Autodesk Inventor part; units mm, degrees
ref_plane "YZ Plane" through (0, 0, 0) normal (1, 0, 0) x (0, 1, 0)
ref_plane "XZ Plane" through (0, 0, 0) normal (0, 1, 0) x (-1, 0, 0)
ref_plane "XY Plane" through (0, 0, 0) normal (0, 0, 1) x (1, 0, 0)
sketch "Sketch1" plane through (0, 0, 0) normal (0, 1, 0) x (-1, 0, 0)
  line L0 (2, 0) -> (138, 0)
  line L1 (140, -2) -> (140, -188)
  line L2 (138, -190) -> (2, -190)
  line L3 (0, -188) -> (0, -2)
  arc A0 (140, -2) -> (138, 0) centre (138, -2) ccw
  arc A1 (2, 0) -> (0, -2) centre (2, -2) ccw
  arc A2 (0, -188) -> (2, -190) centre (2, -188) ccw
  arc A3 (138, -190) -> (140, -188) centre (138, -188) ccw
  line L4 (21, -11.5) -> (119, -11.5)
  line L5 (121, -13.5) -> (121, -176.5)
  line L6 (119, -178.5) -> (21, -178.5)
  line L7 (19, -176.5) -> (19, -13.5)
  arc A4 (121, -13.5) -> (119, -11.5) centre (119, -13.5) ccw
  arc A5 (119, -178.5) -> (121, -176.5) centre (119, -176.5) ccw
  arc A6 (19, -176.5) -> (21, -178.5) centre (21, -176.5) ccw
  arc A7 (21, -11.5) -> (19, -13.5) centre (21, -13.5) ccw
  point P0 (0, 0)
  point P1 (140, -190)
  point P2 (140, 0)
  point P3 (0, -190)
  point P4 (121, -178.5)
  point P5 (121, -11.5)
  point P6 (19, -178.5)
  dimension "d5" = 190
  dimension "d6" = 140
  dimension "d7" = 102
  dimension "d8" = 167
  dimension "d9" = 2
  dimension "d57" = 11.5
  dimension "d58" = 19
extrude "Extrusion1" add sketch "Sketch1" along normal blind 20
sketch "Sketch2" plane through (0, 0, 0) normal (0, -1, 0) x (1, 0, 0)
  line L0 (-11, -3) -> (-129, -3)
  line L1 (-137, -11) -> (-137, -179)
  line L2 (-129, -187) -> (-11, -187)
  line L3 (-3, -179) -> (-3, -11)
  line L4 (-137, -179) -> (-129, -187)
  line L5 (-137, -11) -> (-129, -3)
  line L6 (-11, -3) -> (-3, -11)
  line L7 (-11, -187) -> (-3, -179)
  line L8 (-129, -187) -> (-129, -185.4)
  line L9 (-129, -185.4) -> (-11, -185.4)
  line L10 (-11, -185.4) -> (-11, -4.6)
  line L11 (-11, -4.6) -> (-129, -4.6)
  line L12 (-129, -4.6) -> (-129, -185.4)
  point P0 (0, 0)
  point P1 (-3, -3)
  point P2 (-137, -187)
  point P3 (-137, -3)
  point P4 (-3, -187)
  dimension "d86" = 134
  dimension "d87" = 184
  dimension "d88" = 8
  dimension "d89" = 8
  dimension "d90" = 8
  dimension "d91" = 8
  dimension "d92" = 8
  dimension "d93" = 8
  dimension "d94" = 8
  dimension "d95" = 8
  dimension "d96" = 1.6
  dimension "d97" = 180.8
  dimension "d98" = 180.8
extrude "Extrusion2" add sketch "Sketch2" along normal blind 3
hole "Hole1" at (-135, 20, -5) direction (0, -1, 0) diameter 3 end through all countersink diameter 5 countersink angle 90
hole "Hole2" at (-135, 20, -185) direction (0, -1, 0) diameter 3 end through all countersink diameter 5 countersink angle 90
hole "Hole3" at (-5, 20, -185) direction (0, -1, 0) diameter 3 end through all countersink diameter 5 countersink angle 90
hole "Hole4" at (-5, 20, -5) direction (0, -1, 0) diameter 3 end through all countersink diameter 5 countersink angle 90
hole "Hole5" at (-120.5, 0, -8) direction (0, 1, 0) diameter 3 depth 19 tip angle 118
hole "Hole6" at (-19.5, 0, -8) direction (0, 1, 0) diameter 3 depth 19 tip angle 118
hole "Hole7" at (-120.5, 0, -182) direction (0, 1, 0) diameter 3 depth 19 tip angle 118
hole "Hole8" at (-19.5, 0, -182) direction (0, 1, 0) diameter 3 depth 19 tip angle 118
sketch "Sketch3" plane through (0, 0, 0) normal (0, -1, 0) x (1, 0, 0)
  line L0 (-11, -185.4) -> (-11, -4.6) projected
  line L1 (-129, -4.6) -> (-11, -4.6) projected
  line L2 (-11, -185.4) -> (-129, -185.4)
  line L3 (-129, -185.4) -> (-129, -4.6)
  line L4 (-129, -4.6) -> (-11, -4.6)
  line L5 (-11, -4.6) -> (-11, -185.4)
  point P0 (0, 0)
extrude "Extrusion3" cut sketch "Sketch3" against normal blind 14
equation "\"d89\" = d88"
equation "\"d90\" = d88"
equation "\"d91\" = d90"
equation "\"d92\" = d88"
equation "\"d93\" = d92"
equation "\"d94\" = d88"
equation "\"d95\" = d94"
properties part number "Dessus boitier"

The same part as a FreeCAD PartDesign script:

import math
import FreeCAD as App
import Part
import Sketcher
from FreeCAD import Vector
Q = App.Units.Quantity


def add_polygon(sketch, points):
    """Adds a closed chain of lines whose ends are joined by coincident constraints."""
    first, n = sketch.GeometryCount, len(points)
    for a, b in zip(points, points[1:] + points[:1]):
        sketch.addGeometry(Part.LineSegment(App.Vector(*a, 0), App.Vector(*b, 0)), False)
    for i in range(n):
        sketch.addConstraint(Sketcher.Constraint("Coincident", first + i, 2, first + (i + 1) % n, 1))

doc = App.newDocument("Part")
body = doc.addObject("PartDesign::Body", "Body")

# Sketch on XZ plane
sketch1 = body.newObject("Sketcher::SketchObject", "Sketch")
sketch1.AttachmentSupport = (doc.getObject("XZ_Plane"), [""])
sketch1.MapMode = "FlatFace"
sketch1.addGeometry(Part.LineSegment(Vector(-138, 0, 0), Vector(-2, 0, 0)), False)
sketch1.addGeometry(Part.ArcOfCircle(Part.Circle(Vector(-2, -2, 0), Vector(0, 0, 1), 2), math.radians(0), math.radians(90)), False)
sketch1.addGeometry(Part.LineSegment(Vector(0, -2, 0), Vector(0, -188, 0)), False)
sketch1.addGeometry(Part.ArcOfCircle(Part.Circle(Vector(-2, -188, 0), Vector(0, 0, 1), 2), math.radians(-90), math.radians(0)), False)
sketch1.addGeometry(Part.LineSegment(Vector(-2, -190, 0), Vector(-138, -190, 0)), False)
sketch1.addGeometry(Part.ArcOfCircle(Part.Circle(Vector(-138, -188, 0), Vector(0, 0, 1), 2), math.radians(180), math.radians(270)), False)
sketch1.addGeometry(Part.LineSegment(Vector(-140, -188, 0), Vector(-140, -2, 0)), False)
sketch1.addGeometry(Part.ArcOfCircle(Part.Circle(Vector(-138, -2, 0), Vector(0, 0, 1), 2), math.radians(90), math.radians(180)), False)
sketch1.addGeometry(Part.ArcOfCircle(Part.Circle(Vector(-21, -13.5, 0), Vector(0, 0, 1), 2), math.radians(0), math.radians(90)), False)
sketch1.addGeometry(Part.LineSegment(Vector(-21, -11.5, 0), Vector(-119, -11.5, 0)), False)
sketch1.addGeometry(Part.ArcOfCircle(Part.Circle(Vector(-119, -13.5, 0), Vector(0, 0, 1), 2), math.radians(90), math.radians(180)), False)
sketch1.addGeometry(Part.LineSegment(Vector(-121, -13.5, 0), Vector(-121, -176.5, 0)), False)
sketch1.addGeometry(Part.ArcOfCircle(Part.Circle(Vector(-119, -176.5, 0), Vector(0, 0, 1), 2), math.radians(180), math.radians(270)), False)
sketch1.addGeometry(Part.LineSegment(Vector(-119, -178.5, 0), Vector(-21, -178.5, 0)), False)
sketch1.addGeometry(Part.ArcOfCircle(Part.Circle(Vector(-21, -176.5, 0), Vector(0, 0, 1), 2), math.radians(-90), math.radians(0)), False)
sketch1.addGeometry(Part.LineSegment(Vector(-19, -176.5, 0), Vector(-19, -13.5, 0)), False)
sketch1.addConstraint(Sketcher.Constraint("Tangent", 0, 2, 1, 2))
sketch1.addConstraint(Sketcher.Constraint("Tangent", 1, 1, 2, 1))
sketch1.addConstraint(Sketcher.Constraint("Tangent", 2, 2, 3, 2))
sketch1.addConstraint(Sketcher.Constraint("Tangent", 3, 1, 4, 1))
sketch1.addConstraint(Sketcher.Constraint("Tangent", 4, 2, 5, 2))
sketch1.addConstraint(Sketcher.Constraint("Tangent", 5, 1, 6, 1))
sketch1.addConstraint(Sketcher.Constraint("Tangent", 6, 2, 7, 2))
sketch1.addConstraint(Sketcher.Constraint("Tangent", 7, 1, 0, 1))
sketch1.addConstraint(Sketcher.Constraint("Tangent", 8, 2, 9, 1))
sketch1.addConstraint(Sketcher.Constraint("Tangent", 9, 2, 10, 1))
sketch1.addConstraint(Sketcher.Constraint("Tangent", 10, 2, 11, 1))
sketch1.addConstraint(Sketcher.Constraint("Tangent", 11, 2, 12, 1))
sketch1.addConstraint(Sketcher.Constraint("Tangent", 12, 2, 13, 1))
sketch1.addConstraint(Sketcher.Constraint("Tangent", 13, 2, 14, 1))
sketch1.addConstraint(Sketcher.Constraint("Tangent", 14, 2, 15, 1))
sketch1.addConstraint(Sketcher.Constraint("Tangent", 15, 2, 8, 1))
sketch1.addConstraint(Sketcher.Constraint("Horizontal", 0))
sketch1.addConstraint(Sketcher.Constraint("Vertical", 2))
sketch1.addConstraint(Sketcher.Constraint("Horizontal", 4))
sketch1.addConstraint(Sketcher.Constraint("Vertical", 6))
sketch1.addConstraint(Sketcher.Constraint("Horizontal", 9))
sketch1.addConstraint(Sketcher.Constraint("Vertical", 11))
sketch1.addConstraint(Sketcher.Constraint("Horizontal", 13))
sketch1.addConstraint(Sketcher.Constraint("Vertical", 15))
sketch1.addConstraint(Sketcher.Constraint("Equal", 1, 3))
sketch1.addConstraint(Sketcher.Constraint("Equal", 3, 5))
sketch1.addConstraint(Sketcher.Constraint("Equal", 5, 7))
sketch1.addConstraint(Sketcher.Constraint("Equal", 7, 8))
sketch1.addConstraint(Sketcher.Constraint("Equal", 8, 10))
sketch1.addConstraint(Sketcher.Constraint("Equal", 10, 12))
sketch1.addConstraint(Sketcher.Constraint("Equal", 12, 14))
sketch1.addConstraint(Sketcher.Constraint("PointOnObject", 0, 2, -1))
sketch1.addConstraint(Sketcher.Constraint("PointOnObject", 1, 1, -2))
sketch1.addConstraint(Sketcher.Constraint("Radius", 1, Q("2 mm")))
sketch1.addConstraint(Sketcher.Constraint("DistanceY", 3, 1, -1, 1, Q("190 mm")))
sketch1.addConstraint(Sketcher.Constraint("DistanceX", 5, 1, -1, 1, Q("140 mm")))
sketch1.addConstraint(Sketcher.Constraint("DistanceX", 14, 2, -1, 1, Q("19 mm")))
sketch1.addConstraint(Sketcher.Constraint("DistanceX", 7, 3, 10, 3, Q("19 mm")))
sketch1.addConstraint(Sketcher.Constraint("DistanceY", 8, 2, -1, 1, Q("11.5 mm")))
sketch1.addConstraint(Sketcher.Constraint("DistanceY", 5, 3, 12, 3, Q("11.5 mm")))
pad1 = body.newObject("PartDesign::Pad", "Pad")
pad1.Profile = sketch1
pad1.Length = 20
pad1.Reversed = True

# Sketch on XZ plane
sketch2 = body.newObject("Sketcher::SketchObject", "Sketch001")
sketch2.AttachmentSupport = (doc.getObject("XZ_Plane"), [""])
sketch2.MapMode = "FlatFace"
add_polygon(sketch2, [(-3, -11), (-11, -3), (-129, -3), (-137, -11), (-137, -179), (-129, -187), (-11, -187), (-3, -179)])  # lines 0-7
add_polygon(sketch2, [(-11, -185), (-129, -185), (-129, -5), (-11, -5)])  # lines 8-11
sketch2.addConstraint(Sketcher.Constraint("Horizontal", 1))
sketch2.addConstraint(Sketcher.Constraint("Vertical", 3))
sketch2.addConstraint(Sketcher.Constraint("Horizontal", 5))
sketch2.addConstraint(Sketcher.Constraint("Vertical", 7))
sketch2.addConstraint(Sketcher.Constraint("Horizontal", 8))
sketch2.addConstraint(Sketcher.Constraint("Vertical", 9))
sketch2.addConstraint(Sketcher.Constraint("Horizontal", 10))
sketch2.addConstraint(Sketcher.Constraint("Vertical", 11))
sketch2.addConstraint(Sketcher.Constraint("Perpendicular", 0, 2))
sketch2.addConstraint(Sketcher.Constraint("Perpendicular", 2, 4))
sketch2.addConstraint(Sketcher.Constraint("Perpendicular", 4, 6))
sketch2.addConstraint(Sketcher.Constraint("Horizontal", 3, 2, 6, 2))
sketch2.addConstraint(Sketcher.Constraint("Horizontal", 2, 2, 7, 2))
sketch2.addConstraint(Sketcher.Constraint("Vertical", 1, 2, 4, 2))
sketch2.addConstraint(Sketcher.Constraint("Vertical", 0, 2, 5, 2))
sketch2.addConstraint(Sketcher.Constraint("Vertical", 4, 2, 8, 2))
sketch2.addConstraint(Sketcher.Constraint("Vertical", 5, 2, 10, 2))
sketch2.addConstraint(Sketcher.Constraint("DistanceY", 9, 1, 9, 2, Q("180.8 mm")))
sketch2.addConstraint(Sketcher.Constraint("DistanceX", 2, 2, 1, 2, Q("8 mm")))
sketch2.addConstraint(Sketcher.Constraint("DistanceY", 4, 2, 1, 2, Q("184 mm")))
sketch2.addConstraint(Sketcher.Constraint("DistanceX", 3, 2, 6, 2, Q("134 mm")))
sketch2.addConstraint(Sketcher.Constraint("DistanceY", 4, 2, 8, 2, Q("1.6 mm")))
sketch2.addConstraint(Sketcher.Constraint("DistanceX", 0, 2, -1, 1, Q("11 mm")))
sketch2.addConstraint(Sketcher.Constraint("DistanceY", 0, 2, -1, 1, Q("3 mm")))
pad2 = body.newObject("PartDesign::Pad", "Pad001")
pad2.Profile = sketch2
pad2.Length = 3

# Sketch on XZ plane
sketch3 = body.newObject("Sketcher::SketchObject", "Sketch002")
sketch3.AttachmentSupport = (doc.getObject("XZ_Plane"), [""])
sketch3.MapMode = "FlatFace"
sketch3.AttachmentOffset = App.Placement(Vector(0, 0, -20), App.Rotation())
sketch3.addGeometry(Part.Circle(Vector(-135, -5, 0), Vector(0, 0, 1), 1.5), False)
sketch3.addConstraint(Sketcher.Constraint("Diameter", 0, Q("3 mm")))
sketch3.addConstraint(Sketcher.Constraint("DistanceX", 0, 3, -1, 1, Q("135 mm")))
sketch3.addConstraint(Sketcher.Constraint("DistanceY", 0, 3, -1, 1, Q("5 mm")))
doc.recompute()
hole = body.newObject("PartDesign::Hole", "Hole")
hole.Profile = sketch3
hole.ThreadType = "None"
hole.Diameter = 3
hole.DepthType = "ThroughAll"
hole.HoleCutType = "Countersink"
hole.HoleCutDiameter = 5
hole.HoleCutCountersinkAngle = 90
hole.Reversed = True

# Sketch on XZ plane
sketch4 = body.newObject("Sketcher::SketchObject", "Sketch003")
sketch4.AttachmentSupport = (doc.getObject("XZ_Plane"), [""])
sketch4.MapMode = "FlatFace"
sketch4.AttachmentOffset = App.Placement(Vector(0, 0, -20), App.Rotation())
sketch4.addGeometry(Part.Circle(Vector(-135, -185, 0), Vector(0, 0, 1), 1.5), False)
sketch4.addConstraint(Sketcher.Constraint("Diameter", 0, Q("3 mm")))
sketch4.addConstraint(Sketcher.Constraint("DistanceX", 0, 3, -1, 1, Q("135 mm")))
sketch4.addConstraint(Sketcher.Constraint("DistanceY", 0, 3, -1, 1, Q("185 mm")))
doc.recompute()
hole2 = body.newObject("PartDesign::Hole", "Hole001")
hole2.Profile = sketch4
hole2.ThreadType = "None"
hole2.Diameter = 3
hole2.DepthType = "ThroughAll"
hole2.HoleCutType = "Countersink"
hole2.HoleCutDiameter = 5
hole2.HoleCutCountersinkAngle = 90
hole2.Reversed = True

# Sketch on XZ plane
sketch5 = body.newObject("Sketcher::SketchObject", "Sketch004")
sketch5.AttachmentSupport = (doc.getObject("XZ_Plane"), [""])
sketch5.MapMode = "FlatFace"
sketch5.AttachmentOffset = App.Placement(Vector(0, 0, -20), App.Rotation())
sketch5.addGeometry(Part.Circle(Vector(-5, -185, 0), Vector(0, 0, 1), 1.5), False)
sketch5.addConstraint(Sketcher.Constraint("Diameter", 0, Q("3 mm")))
sketch5.addConstraint(Sketcher.Constraint("DistanceX", 0, 3, -1, 1, Q("5 mm")))
sketch5.addConstraint(Sketcher.Constraint("DistanceY", 0, 3, -1, 1, Q("185 mm")))
doc.recompute()
hole3 = body.newObject("PartDesign::Hole", "Hole002")
hole3.Profile = sketch5
hole3.ThreadType = "None"
hole3.Diameter = 3
hole3.DepthType = "ThroughAll"
hole3.HoleCutType = "Countersink"
hole3.HoleCutDiameter = 5
hole3.HoleCutCountersinkAngle = 90
hole3.Reversed = True

# Sketch on XZ plane
sketch6 = body.newObject("Sketcher::SketchObject", "Sketch005")
sketch6.AttachmentSupport = (doc.getObject("XZ_Plane"), [""])
sketch6.MapMode = "FlatFace"
sketch6.AttachmentOffset = App.Placement(Vector(0, 0, -20), App.Rotation())
sketch6.addGeometry(Part.Circle(Vector(-5, -5, 0), Vector(0, 0, 1), 1.5), False)
sketch6.addConstraint(Sketcher.Constraint("Diameter", 0, Q("3 mm")))
sketch6.addConstraint(Sketcher.Constraint("DistanceX", 0, 3, -1, 1, Q("5 mm")))
sketch6.addConstraint(Sketcher.Constraint("DistanceY", 0, 3, -1, 1, Q("5 mm")))
doc.recompute()
hole4 = body.newObject("PartDesign::Hole", "Hole003")
hole4.Profile = sketch6
hole4.ThreadType = "None"
hole4.Diameter = 3
hole4.DepthType = "ThroughAll"
hole4.HoleCutType = "Countersink"
hole4.HoleCutDiameter = 5
hole4.HoleCutCountersinkAngle = 90
hole4.Reversed = True

# Sketch on XZ plane
sketch7 = body.newObject("Sketcher::SketchObject", "Sketch006")
sketch7.AttachmentSupport = (doc.getObject("XZ_Plane"), [""])
sketch7.MapMode = "FlatFace"
sketch7.addGeometry(Part.Circle(Vector(-120.5, -8, 0), Vector(0, 0, 1), 1.5), False)
sketch7.addConstraint(Sketcher.Constraint("Diameter", 0, Q("3 mm")))
sketch7.addConstraint(Sketcher.Constraint("DistanceY", 0, 3, -1, 1, Q("8 mm")))
sketch7.addConstraint(Sketcher.Constraint("DistanceX", 0, 3, -1, 1, Q("120.5 mm")))
doc.recompute()
hole5 = body.newObject("PartDesign::Hole", "Hole004")
hole5.Profile = sketch7
hole5.ThreadType = "None"
hole5.Diameter = 3
hole5.DepthType = "Dimension"
hole5.Depth = 19
hole5.DrillPoint = "Angled"
hole5.DrillPointAngle = 118

# Sketch on XZ plane
sketch8 = body.newObject("Sketcher::SketchObject", "Sketch007")
sketch8.AttachmentSupport = (doc.getObject("XZ_Plane"), [""])
sketch8.MapMode = "FlatFace"
sketch8.addGeometry(Part.Circle(Vector(-19.5, -8, 0), Vector(0, 0, 1), 1.5), False)
sketch8.addConstraint(Sketcher.Constraint("Diameter", 0, Q("3 mm")))
sketch8.addConstraint(Sketcher.Constraint("DistanceY", 0, 3, -1, 1, Q("8 mm")))
sketch8.addConstraint(Sketcher.Constraint("DistanceX", 0, 3, -1, 1, Q("19.5 mm")))
doc.recompute()
hole6 = body.newObject("PartDesign::Hole", "Hole005")
hole6.Profile = sketch8
hole6.ThreadType = "None"
hole6.Diameter = 3
hole6.DepthType = "Dimension"
hole6.Depth = 19
hole6.DrillPoint = "Angled"
hole6.DrillPointAngle = 118

# Sketch on XZ plane
sketch9 = body.newObject("Sketcher::SketchObject", "Sketch008")
sketch9.AttachmentSupport = (doc.getObject("XZ_Plane"), [""])
sketch9.MapMode = "FlatFace"
sketch9.addGeometry(Part.Circle(Vector(-120.5, -182, 0), Vector(0, 0, 1), 1.5), False)
sketch9.addConstraint(Sketcher.Constraint("Diameter", 0, Q("3 mm")))
sketch9.addConstraint(Sketcher.Constraint("DistanceY", 0, 3, -1, 1, Q("182 mm")))
sketch9.addConstraint(Sketcher.Constraint("DistanceX", 0, 3, -1, 1, Q("120.5 mm")))
doc.recompute()
hole7 = body.newObject("PartDesign::Hole", "Hole006")
hole7.Profile = sketch9
hole7.ThreadType = "None"
hole7.Diameter = 3
hole7.DepthType = "Dimension"
hole7.Depth = 19
hole7.DrillPoint = "Angled"
hole7.DrillPointAngle = 118

# Sketch on XZ plane
sketch10 = body.newObject("Sketcher::SketchObject", "Sketch009")
sketch10.AttachmentSupport = (doc.getObject("XZ_Plane"), [""])
sketch10.MapMode = "FlatFace"
sketch10.addGeometry(Part.Circle(Vector(-19.5, -182, 0), Vector(0, 0, 1), 1.5), False)
sketch10.addConstraint(Sketcher.Constraint("Diameter", 0, Q("3 mm")))
sketch10.addConstraint(Sketcher.Constraint("DistanceY", 0, 3, -1, 1, Q("182 mm")))
sketch10.addConstraint(Sketcher.Constraint("DistanceX", 0, 3, -1, 1, Q("19.5 mm")))
doc.recompute()
hole8 = body.newObject("PartDesign::Hole", "Hole007")
hole8.Profile = sketch10
hole8.ThreadType = "None"
hole8.Diameter = 3
hole8.DepthType = "Dimension"
hole8.Depth = 19
hole8.DrillPoint = "Angled"
hole8.DrillPointAngle = 118

# Sketch on XZ plane
sketch11 = body.newObject("Sketcher::SketchObject", "Sketch010")
sketch11.AttachmentSupport = (doc.getObject("XZ_Plane"), [""])
sketch11.MapMode = "FlatFace"
add_polygon(sketch11, [(-129, -185), (-11, -185), (-11, -5), (-129, -5)])  # lines 0-3
sketch11.addConstraint(Sketcher.Constraint("Horizontal", 0))
sketch11.addConstraint(Sketcher.Constraint("Vertical", 1))
sketch11.addConstraint(Sketcher.Constraint("Horizontal", 2))
sketch11.addConstraint(Sketcher.Constraint("Vertical", 3))
sketch11.addConstraint(Sketcher.Constraint("DistanceX", 0, 1, 0, 2, Q("118 mm")))
sketch11.addConstraint(Sketcher.Constraint("DistanceY", 1, 1, 1, 2, Q("180.8 mm")))
sketch11.addConstraint(Sketcher.Constraint("DistanceX", 0, 2, -1, 1, Q("11 mm")))
sketch11.addConstraint(Sketcher.Constraint("DistanceY", 0, 2, -1, 1, Q("185.4 mm")))
pocket1 = body.newObject("PartDesign::Pocket", "Pocket")
pocket1.Profile = sketch11
pocket1.Length = 14

doc.recompute()
